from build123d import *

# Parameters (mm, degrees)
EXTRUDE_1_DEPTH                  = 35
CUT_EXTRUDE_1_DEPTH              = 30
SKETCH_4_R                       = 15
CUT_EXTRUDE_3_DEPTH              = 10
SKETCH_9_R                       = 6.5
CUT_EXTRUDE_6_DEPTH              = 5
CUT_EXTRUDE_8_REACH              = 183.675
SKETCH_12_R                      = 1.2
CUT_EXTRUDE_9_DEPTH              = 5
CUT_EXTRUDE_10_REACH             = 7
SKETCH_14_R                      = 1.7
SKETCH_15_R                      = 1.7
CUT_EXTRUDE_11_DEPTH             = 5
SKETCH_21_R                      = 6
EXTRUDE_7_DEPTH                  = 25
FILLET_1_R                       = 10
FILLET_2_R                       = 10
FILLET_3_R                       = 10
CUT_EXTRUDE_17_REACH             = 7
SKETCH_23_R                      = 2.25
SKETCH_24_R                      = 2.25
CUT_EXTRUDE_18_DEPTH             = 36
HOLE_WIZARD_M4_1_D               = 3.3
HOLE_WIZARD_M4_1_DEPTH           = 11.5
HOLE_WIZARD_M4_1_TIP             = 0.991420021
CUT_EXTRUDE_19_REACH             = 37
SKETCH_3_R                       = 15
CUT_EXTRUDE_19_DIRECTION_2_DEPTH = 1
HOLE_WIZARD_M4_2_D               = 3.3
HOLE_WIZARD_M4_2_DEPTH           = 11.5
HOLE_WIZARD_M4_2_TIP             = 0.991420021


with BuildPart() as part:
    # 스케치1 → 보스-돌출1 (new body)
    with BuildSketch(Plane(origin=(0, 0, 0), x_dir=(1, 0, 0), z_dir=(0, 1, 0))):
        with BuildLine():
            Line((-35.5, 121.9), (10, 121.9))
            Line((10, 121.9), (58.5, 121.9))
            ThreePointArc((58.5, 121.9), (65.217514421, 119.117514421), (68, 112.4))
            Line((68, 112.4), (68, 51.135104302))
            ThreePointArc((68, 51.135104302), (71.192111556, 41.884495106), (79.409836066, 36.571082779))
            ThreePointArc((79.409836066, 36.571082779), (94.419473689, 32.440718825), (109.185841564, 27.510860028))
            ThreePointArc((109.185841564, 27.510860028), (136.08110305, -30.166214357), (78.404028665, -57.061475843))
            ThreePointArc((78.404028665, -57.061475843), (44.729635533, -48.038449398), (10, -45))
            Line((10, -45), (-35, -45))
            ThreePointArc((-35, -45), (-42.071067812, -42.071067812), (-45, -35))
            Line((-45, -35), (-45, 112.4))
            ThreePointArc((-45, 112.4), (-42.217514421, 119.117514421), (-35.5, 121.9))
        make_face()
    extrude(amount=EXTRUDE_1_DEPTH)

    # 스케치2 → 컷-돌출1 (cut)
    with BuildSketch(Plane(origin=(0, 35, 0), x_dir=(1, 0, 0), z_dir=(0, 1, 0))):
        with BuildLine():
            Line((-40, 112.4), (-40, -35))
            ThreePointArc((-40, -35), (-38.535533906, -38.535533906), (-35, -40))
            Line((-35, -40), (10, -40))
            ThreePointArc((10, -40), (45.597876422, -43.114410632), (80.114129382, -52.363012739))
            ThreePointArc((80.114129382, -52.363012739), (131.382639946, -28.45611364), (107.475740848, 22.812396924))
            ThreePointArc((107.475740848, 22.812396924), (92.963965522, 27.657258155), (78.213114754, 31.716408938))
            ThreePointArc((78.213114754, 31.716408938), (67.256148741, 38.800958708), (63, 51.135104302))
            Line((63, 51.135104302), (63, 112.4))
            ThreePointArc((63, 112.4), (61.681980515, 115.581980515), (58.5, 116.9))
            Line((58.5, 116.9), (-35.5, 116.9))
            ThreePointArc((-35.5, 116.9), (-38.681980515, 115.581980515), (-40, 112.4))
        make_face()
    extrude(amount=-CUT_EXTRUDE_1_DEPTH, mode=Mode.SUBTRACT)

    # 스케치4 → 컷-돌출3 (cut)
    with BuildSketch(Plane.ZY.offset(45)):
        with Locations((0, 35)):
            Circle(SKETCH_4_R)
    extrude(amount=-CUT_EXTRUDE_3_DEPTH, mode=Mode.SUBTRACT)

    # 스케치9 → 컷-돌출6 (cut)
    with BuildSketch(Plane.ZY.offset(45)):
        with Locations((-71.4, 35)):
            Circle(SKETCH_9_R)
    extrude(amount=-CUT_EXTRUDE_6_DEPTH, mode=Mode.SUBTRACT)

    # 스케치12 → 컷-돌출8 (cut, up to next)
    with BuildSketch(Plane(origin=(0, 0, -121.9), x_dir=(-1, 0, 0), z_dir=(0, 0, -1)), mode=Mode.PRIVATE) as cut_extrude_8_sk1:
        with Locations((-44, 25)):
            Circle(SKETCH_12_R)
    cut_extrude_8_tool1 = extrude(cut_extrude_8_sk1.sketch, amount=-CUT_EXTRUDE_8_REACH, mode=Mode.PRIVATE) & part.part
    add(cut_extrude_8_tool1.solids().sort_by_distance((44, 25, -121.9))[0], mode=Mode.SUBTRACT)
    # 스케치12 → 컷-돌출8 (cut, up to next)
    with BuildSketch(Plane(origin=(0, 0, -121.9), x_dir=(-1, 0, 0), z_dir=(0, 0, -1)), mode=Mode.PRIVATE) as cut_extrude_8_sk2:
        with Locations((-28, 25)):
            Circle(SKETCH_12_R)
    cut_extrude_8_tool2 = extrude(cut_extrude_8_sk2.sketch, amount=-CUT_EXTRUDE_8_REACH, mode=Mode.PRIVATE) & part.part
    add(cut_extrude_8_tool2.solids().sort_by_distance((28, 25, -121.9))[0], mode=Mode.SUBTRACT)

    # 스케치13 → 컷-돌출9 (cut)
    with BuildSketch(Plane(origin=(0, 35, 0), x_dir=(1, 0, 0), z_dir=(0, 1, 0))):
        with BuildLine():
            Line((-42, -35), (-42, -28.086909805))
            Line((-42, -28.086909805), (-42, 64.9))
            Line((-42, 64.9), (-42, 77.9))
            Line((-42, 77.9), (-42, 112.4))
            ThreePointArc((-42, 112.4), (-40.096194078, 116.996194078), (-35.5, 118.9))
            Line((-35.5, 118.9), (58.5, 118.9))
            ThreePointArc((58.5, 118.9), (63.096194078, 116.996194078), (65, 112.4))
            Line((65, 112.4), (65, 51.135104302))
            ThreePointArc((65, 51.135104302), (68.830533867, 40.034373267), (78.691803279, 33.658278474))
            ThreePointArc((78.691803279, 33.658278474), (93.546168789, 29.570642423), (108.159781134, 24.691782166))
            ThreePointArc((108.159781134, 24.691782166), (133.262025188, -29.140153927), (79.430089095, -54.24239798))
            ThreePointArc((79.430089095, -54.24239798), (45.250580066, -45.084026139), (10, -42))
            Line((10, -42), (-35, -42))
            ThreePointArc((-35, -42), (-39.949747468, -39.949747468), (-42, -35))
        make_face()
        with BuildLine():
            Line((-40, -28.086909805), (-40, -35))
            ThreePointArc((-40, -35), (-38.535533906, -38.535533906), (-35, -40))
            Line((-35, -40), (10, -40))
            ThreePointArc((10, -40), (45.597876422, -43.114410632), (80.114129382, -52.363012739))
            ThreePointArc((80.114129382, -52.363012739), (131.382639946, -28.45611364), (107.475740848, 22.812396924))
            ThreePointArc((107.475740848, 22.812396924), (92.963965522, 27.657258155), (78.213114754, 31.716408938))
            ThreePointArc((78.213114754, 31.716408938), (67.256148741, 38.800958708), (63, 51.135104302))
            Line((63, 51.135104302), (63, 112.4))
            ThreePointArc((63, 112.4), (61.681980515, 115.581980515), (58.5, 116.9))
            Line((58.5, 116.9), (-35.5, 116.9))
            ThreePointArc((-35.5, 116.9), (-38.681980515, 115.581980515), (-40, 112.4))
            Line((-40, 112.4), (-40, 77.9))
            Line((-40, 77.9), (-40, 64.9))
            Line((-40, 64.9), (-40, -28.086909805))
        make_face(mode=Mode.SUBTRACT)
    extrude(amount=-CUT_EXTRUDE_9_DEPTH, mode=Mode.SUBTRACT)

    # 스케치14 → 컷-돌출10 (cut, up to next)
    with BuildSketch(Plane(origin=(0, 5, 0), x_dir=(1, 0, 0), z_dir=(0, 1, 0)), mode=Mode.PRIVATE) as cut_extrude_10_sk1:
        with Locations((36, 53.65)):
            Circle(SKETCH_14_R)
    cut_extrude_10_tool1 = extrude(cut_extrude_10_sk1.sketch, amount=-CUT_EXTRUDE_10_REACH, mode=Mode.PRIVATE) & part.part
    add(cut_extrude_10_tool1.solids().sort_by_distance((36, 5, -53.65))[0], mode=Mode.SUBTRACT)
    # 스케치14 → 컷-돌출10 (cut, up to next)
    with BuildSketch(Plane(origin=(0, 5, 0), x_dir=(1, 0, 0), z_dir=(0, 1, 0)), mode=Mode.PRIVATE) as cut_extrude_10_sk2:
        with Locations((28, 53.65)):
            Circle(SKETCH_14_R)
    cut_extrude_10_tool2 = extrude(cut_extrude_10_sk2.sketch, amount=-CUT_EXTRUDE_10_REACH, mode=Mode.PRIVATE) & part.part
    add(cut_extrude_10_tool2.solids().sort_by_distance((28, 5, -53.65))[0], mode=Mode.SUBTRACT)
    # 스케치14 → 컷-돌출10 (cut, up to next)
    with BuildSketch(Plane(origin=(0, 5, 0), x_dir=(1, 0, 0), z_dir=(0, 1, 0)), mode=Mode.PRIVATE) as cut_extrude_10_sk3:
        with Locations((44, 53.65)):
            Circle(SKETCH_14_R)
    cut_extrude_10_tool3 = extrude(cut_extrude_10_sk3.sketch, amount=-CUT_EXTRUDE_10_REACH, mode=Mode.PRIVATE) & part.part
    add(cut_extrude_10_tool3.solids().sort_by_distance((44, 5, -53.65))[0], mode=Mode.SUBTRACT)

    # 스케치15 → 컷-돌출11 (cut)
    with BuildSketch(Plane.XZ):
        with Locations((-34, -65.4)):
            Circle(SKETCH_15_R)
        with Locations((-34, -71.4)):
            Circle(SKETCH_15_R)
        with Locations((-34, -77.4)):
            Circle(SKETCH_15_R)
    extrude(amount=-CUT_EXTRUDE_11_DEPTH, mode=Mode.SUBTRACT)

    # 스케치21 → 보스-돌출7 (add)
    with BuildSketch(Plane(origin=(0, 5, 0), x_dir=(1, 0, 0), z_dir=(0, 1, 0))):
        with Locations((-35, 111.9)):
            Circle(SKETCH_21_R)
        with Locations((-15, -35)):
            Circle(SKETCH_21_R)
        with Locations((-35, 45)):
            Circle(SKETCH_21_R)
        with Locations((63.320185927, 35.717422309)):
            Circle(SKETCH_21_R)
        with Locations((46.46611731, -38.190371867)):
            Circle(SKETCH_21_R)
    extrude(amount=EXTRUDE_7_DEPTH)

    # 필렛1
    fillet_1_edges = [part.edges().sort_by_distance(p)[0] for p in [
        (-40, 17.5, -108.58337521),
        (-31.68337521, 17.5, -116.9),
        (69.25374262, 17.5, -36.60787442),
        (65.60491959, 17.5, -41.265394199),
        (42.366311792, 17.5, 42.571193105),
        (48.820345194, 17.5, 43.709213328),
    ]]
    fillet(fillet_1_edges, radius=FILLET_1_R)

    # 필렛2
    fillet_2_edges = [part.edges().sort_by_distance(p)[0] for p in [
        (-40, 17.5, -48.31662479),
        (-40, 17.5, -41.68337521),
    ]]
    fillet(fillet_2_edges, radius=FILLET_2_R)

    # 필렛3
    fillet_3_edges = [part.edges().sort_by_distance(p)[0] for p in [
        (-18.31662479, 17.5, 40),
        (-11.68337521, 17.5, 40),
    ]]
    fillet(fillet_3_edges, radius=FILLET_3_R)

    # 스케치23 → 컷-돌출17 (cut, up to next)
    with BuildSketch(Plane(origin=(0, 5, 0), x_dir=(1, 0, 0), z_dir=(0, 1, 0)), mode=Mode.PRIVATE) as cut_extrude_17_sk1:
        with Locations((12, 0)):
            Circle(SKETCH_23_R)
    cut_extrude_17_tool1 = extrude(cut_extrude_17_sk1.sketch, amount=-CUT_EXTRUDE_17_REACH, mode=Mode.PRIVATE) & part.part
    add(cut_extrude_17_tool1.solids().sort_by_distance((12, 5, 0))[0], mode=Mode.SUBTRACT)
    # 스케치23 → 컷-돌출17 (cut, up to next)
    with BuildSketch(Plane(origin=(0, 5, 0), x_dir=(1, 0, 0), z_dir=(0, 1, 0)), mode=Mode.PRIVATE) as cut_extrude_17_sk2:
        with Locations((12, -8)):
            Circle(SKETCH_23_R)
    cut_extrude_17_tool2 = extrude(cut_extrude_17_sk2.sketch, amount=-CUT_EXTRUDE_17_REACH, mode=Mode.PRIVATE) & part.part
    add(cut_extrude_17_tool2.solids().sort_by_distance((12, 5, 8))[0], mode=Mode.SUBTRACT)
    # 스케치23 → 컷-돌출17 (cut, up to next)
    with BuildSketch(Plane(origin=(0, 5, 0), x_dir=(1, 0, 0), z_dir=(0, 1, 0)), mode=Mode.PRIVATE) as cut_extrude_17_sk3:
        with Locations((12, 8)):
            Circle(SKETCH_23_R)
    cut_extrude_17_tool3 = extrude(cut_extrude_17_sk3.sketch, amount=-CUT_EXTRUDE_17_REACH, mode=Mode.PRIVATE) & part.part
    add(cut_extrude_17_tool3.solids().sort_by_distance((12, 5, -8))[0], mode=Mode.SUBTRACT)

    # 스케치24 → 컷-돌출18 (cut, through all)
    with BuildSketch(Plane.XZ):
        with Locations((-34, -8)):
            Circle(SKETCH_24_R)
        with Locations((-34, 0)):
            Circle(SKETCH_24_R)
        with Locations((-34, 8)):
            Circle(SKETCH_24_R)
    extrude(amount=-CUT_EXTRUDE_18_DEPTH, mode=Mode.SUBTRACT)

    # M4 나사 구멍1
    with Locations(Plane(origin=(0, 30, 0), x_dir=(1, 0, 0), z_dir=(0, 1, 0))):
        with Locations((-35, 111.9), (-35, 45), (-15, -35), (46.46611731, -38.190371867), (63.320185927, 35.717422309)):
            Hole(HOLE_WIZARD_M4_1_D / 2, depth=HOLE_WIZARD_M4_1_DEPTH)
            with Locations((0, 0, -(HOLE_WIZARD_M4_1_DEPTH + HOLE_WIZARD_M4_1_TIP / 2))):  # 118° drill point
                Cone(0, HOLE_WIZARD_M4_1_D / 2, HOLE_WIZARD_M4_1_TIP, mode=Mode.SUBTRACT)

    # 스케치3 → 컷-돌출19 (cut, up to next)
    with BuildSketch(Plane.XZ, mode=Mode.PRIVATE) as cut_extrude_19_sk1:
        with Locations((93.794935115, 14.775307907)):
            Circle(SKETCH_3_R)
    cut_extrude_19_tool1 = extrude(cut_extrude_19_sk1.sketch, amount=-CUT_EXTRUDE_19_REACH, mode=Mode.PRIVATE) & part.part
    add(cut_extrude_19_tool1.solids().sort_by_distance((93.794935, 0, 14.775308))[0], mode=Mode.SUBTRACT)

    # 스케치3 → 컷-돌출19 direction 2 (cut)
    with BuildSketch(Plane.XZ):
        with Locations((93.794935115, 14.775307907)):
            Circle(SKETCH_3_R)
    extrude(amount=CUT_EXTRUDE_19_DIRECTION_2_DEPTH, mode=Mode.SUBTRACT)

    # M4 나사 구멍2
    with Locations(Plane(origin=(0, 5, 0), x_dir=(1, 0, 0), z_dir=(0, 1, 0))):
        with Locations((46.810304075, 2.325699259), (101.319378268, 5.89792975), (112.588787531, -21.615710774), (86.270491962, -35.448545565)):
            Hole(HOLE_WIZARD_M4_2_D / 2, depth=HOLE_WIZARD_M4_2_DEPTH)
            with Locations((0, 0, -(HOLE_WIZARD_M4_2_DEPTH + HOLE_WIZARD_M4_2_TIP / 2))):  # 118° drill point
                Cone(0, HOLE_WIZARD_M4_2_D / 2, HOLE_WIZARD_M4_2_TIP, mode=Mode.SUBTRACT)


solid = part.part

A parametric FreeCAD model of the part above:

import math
import FreeCAD as App
import Part
import Sketcher
Q = App.Units.Quantity


def edges_at(feature, points):
    """Names of the edges that pass closest to the given points."""
    edges = feature.Shape.Edges
    near = lambda p: min(range(len(edges)), key=lambda i: edges[i].distToShape(Part.Vertex(*p))[0])
    return sorted({f"Edge{near(p) + 1}" for p in points})

doc = App.newDocument("Part")
body = doc.addObject("PartDesign::Body", "Body")

# Sketch on XZ plane
sketch1 = body.newObject("Sketcher::SketchObject", "Sketch")
sketch1.AttachmentSupport = (doc.getObject("XZ_Plane"), [""])
sketch1.MapMode = "FlatFace"
sketch1.addGeometry(Part.LineSegment(App.Vector(58, -122, 0), App.Vector(-36, -122, 0)), False)
sketch1.addGeometry(Part.ArcOfCircle(Part.Circle(App.Vector(-35, -112, 0), App.Vector(0, 0, 1), 10), math.radians(-180), math.radians(-90)), False)
sketch1.addGeometry(Part.LineSegment(App.Vector(-45, -112, 0), App.Vector(-45, 35, 0)), False)
sketch1.addGeometry(Part.ArcOfCircle(Part.Circle(App.Vector(-35, 35, 0), App.Vector(0, 0, 1), 10), math.radians(90), math.radians(180)), False)
sketch1.addGeometry(Part.LineSegment(App.Vector(-35, 45, 0), App.Vector(10, 45, 0)), False)
sketch1.addGeometry(Part.ArcOfCircle(Part.Circle(App.Vector(10, 245, 0), App.Vector(0, 0, 1), 200), math.radians(-90), math.radians(-70)), False)
sketch1.addGeometry(Part.ArcOfCircle(Part.Circle(App.Vector(94, 15, 0), App.Vector(0, 0, 1), 45), math.radians(-70), math.radians(110)), False)
sketch1.addGeometry(Part.ArcOfCircle(Part.Circle(App.Vector(10, 245, 0), App.Vector(0, 0, 1), 290), math.radians(-76.15), math.radians(-70)), False)
sketch1.addGeometry(Part.ArcOfCircle(Part.Circle(App.Vector(83, -51, 0), App.Vector(0, 0, 1), 15), math.radians(104), math.radians(180)), False)
sketch1.addGeometry(Part.LineSegment(App.Vector(68, -51, 0), App.Vector(68, -112, 0)), False)
sketch1.addGeometry(Part.ArcOfCircle(Part.Circle(App.Vector(58, -112, 0), App.Vector(0, 0, 1), 10), math.radians(-90), math.radians(0)), False)
sketch1.addConstraint(Sketcher.Constraint("Tangent", 0, 2, 1, 2))
sketch1.addConstraint(Sketcher.Constraint("Tangent", 1, 1, 2, 1))
sketch1.addConstraint(Sketcher.Constraint("Tangent", 2, 2, 3, 2))
sketch1.addConstraint(Sketcher.Constraint("Tangent", 3, 1, 4, 1))
sketch1.addConstraint(Sketcher.Constraint("Tangent", 4, 2, 5, 1))
sketch1.addConstraint(Sketcher.Constraint("Tangent", 5, 2, 6, 2))
sketch1.addConstraint(Sketcher.Constraint("Tangent", 6, 1, 7, 2))
sketch1.addConstraint(Sketcher.Constraint("Tangent", 7, 1, 8, 1))
sketch1.addConstraint(Sketcher.Constraint("Tangent", 8, 2, 9, 1))
sketch1.addConstraint(Sketcher.Constraint("Tangent", 9, 2, 10, 2))
sketch1.addConstraint(Sketcher.Constraint("Tangent", 10, 1, 0, 1))
sketch1.addConstraint(Sketcher.Constraint("Horizontal", 0))
sketch1.addConstraint(Sketcher.Constraint("Vertical", 2))
sketch1.addConstraint(Sketcher.Constraint("Horizontal", 4))
sketch1.addConstraint(Sketcher.Constraint("Vertical", 9))
sketch1.addConstraint(Sketcher.Constraint("Coincident", 7, 3, 5, 3))
sketch1.addConstraint(Sketcher.Constraint("Equal", 1, 10))
sketch1.addConstraint(Sketcher.Constraint("Radius", 3, Q("10 mm")))
sketch1.addConstraint(Sketcher.Constraint("Radius", 5, Q("200 mm")))
sketch1.addConstraint(Sketcher.Constraint("Radius", 6, Q("45 mm")))
sketch1.addConstraint(Sketcher.Constraint("Radius", 8, Q("15 mm")))
sketch1.addConstraint(Sketcher.Constraint("Radius", 1, Q("9.5 mm")))
sketch1.addConstraint(Sketcher.Constraint("DistanceX", 0, 2, 0, 1, Q("94 mm")))
sketch1.addConstraint(Sketcher.Constraint("DistanceX", 4, 1, 4, 2, Q("45 mm")))
sketch1.addConstraint(Sketcher.Constraint("DistanceY", 2, 1, 2, 2, Q("147.4 mm")))
sketch1.addConstraint(Sketcher.Constraint("DistanceX", 3, 3, -1, 1, Q("35 mm")))
sketch1.addConstraint(Sketcher.Constraint("DistanceY", -1, 1, 3, 3, Q("35 mm")))
sketch1.addConstraint(Sketcher.Constraint("DistanceX", 7, 1, 6, 3, Q("14.385099 mm")))
pad1 = body.newObject("PartDesign::Pad", "Pad")
pad1.Profile = sketch1
pad1.Length = 35
pad1.Reversed = True

# Sketch on XZ plane
sketch2 = body.newObject("Sketcher::SketchObject", "Sketch001")
sketch2.AttachmentSupport = (doc.getObject("XZ_Plane"), [""])
sketch2.MapMode = "FlatFace"
sketch2.AttachmentOffset = App.Placement(App.Vector(0, 0, -35), App.Rotation())
sketch2.addGeometry(Part.LineSegment(App.Vector(-40, -112.4, 0), App.Vector(-40, 35, 0)), False)
sketch2.addGeometry(Part.ArcOfCircle(Part.Circle(App.Vector(-35, 35, 0), App.Vector(0, 0, 1), 5), math.radians(90), math.radians(180)), False)
sketch2.addGeometry(Part.LineSegment(App.Vector(-35, 40, 0), App.Vector(10, 40, 0)), False)
sketch2.addGeometry(Part.ArcOfCircle(Part.Circle(App.Vector(10, 245, 0), App.Vector(0, 0, 1), 205), math.radians(-90), math.radians(-70)), False)
sketch2.addGeometry(Part.ArcOfCircle(Part.Circle(App.Vector(93.8, 14.8, 0), App.Vector(0, 0, 1), 40), math.radians(-70), math.radians(110)), False)
sketch2.addGeometry(Part.ArcOfCircle(Part.Circle(App.Vector(10, 245, 0), App.Vector(0, 0, 1), 285), math.radians(-76.15), math.radians(-70)), False)
sketch2.addGeometry(Part.ArcOfCircle(Part.Circle(App.Vector(83, -51.1, 0), App.Vector(0, 0, 1), 20), math.radians(104), math.radians(180)), False)
sketch2.addGeometry(Part.LineSegment(App.Vector(63, -51.1, 0), App.Vector(63, -112.4, 0)), False)
sketch2.addGeometry(Part.ArcOfCircle(Part.Circle(App.Vector(58.5, -112.4, 0), App.Vector(0, 0, 1), 4.5), math.radians(-90), math.radians(0)), False)
sketch2.addGeometry(Part.LineSegment(App.Vector(58.5, -116.9, 0), App.Vector(-35.5, -116.9, 0)), False)
sketch2.addGeometry(Part.ArcOfCircle(Part.Circle(App.Vector(-35.5, -112.4, 0), App.Vector(0, 0, 1), 4.5), math.radians(-180), math.radians(-90)), False)
sketch2.addConstraint(Sketcher.Constraint("Tangent", 0, 2, 1, 2))
sketch2.addConstraint(Sketcher.Constraint("Tangent", 1, 1, 2, 1))
sketch2.addConstraint(Sketcher.Constraint("Tangent", 2, 2, 3, 1))
sketch2.addConstraint(Sketcher.Constraint("Tangent", 3, 2, 4, 2))
sketch2.addConstraint(Sketcher.Constraint("Tangent", 4, 1, 5, 2))
sketch2.addConstraint(Sketcher.Constraint("Tangent", 5, 1, 6, 1))
sketch2.addConstraint(Sketcher.Constraint("Tangent", 6, 2, 7, 1))
sketch2.addConstraint(Sketcher.Constraint("Tangent", 7, 2, 8, 2))
sketch2.addConstraint(Sketcher.Constraint("Tangent", 8, 1, 9, 1))
sketch2.addConstraint(Sketcher.Constraint("Tangent", 9, 2, 10, 2))
sketch2.addConstraint(Sketcher.Constraint("Tangent", 10, 1, 0, 1))
sketch2.addConstraint(Sketcher.Constraint("Vertical", 0))
sketch2.addConstraint(Sketcher.Constraint("Horizontal", 2))
sketch2.addConstraint(Sketcher.Constraint("Vertical", 7))
sketch2.addConstraint(Sketcher.Constraint("Horizontal", 9))
sketch2.addConstraint(Sketcher.Constraint("Coincident", 5, 3, 3, 3))
sketch2.addConstraint(Sketcher.Constraint("Equal", 8, 10))
sketch2.addConstraint(Sketcher.Constraint("Radius", 1, Q("5 mm")))
sketch2.addConstraint(Sketcher.Constraint("Radius", 3, Q("205 mm")))
sketch2.addConstraint(Sketcher.Constraint("Radius", 4, Q("40 mm")))
sketch2.addConstraint(Sketcher.Constraint("Radius", 6, Q("20 mm")))
sketch2.addConstraint(Sketcher.Constraint("Radius", 8, Q("4.5 mm")))
sketch2.addConstraint(Sketcher.Constraint("DistanceX", 2, 1, 2, 2, Q("45 mm")))
sketch2.addConstraint(Sketcher.Constraint("DistanceX", 9, 2, 9, 1, Q("94 mm")))
sketch2.addConstraint(Sketcher.Constraint("DistanceY", 0, 1, 0, 2, Q("147.4 mm")))
sketch2.addConstraint(Sketcher.Constraint("DistanceX", 1, 3, -1, 1, Q("35 mm")))
sketch2.addConstraint(Sketcher.Constraint("DistanceY", -1, 1, 1, 3, Q("35 mm")))
sketch2.addConstraint(Sketcher.Constraint("DistanceX", -1, 1, 3, 2, Q("80.114129 mm")))
pocket1 = body.newObject("PartDesign::Pocket", "Pocket")
pocket1.Profile = sketch2
pocket1.Length = 30
pocket1.Reversed = True

# Sketch on YZ plane
sketch3 = body.newObject("Sketcher::SketchObject", "Sketch002")
sketch3.AttachmentSupport = (doc.getObject("YZ_Plane"), [""])
sketch3.MapMode = "FlatFace"
sketch3.AttachmentOffset = App.Placement(App.Vector(0, 0, -45), App.Rotation())
sketch3.addGeometry(Part.Circle(App.Vector(35, 0, 0), App.Vector(0, 0, 1), 15), False)
sketch3.addConstraint(Sketcher.Constraint("PointOnObject", 0, 3, -1))
sketch3.addConstraint(Sketcher.Constraint("Diameter", 0, Q("30 mm")))
sketch3.addConstraint(Sketcher.Constraint("DistanceX", -1, 1, 0, 3, Q("35 mm")))
pocket2 = body.newObject("PartDesign::Pocket", "Pocket001")
pocket2.Profile = sketch3
pocket2.Length = 10
pocket2.Reversed = True

# Sketch on YZ plane
sketch4 = body.newObject("Sketcher::SketchObject", "Sketch003")
sketch4.AttachmentSupport = (doc.getObject("YZ_Plane"), [""])
sketch4.MapMode = "FlatFace"
sketch4.AttachmentOffset = App.Placement(App.Vector(0, 0, -45), App.Rotation())
sketch4.addGeometry(Part.Circle(App.Vector(35, -71, 0), App.Vector(0, 0, 1), 6), False)
sketch4.addConstraint(Sketcher.Constraint("Diameter", 0, Q("13 mm")))
sketch4.addConstraint(Sketcher.Constraint("DistanceX", -1, 1, 0, 3, Q("35 mm")))
sketch4.addConstraint(Sketcher.Constraint("DistanceY", 0, 3, -1, 1, Q("71.4 mm")))
pocket3 = body.newObject("PartDesign::Pocket", "Pocket002")
pocket3.Profile = sketch4
pocket3.Length = 5
pocket3.Reversed = True

# Sketch on XY plane
sketch5 = body.newObject("Sketcher::SketchObject", "Sketch004")
sketch5.AttachmentSupport = (doc.getObject("XY_Plane"), [""])
sketch5.MapMode = "FlatFace"
sketch5.AttachmentOffset = App.Placement(App.Vector(0, 0, -121.9), App.Rotation())
sketch5.addGeometry(Part.Circle(App.Vector(44, 25, 0), App.Vector(0, 0, 1), 1.2), False)
sketch5.addConstraint(Sketcher.Constraint("Diameter", 0, Q("2.4 mm")))
sketch5.addConstraint(Sketcher.Constraint("DistanceX", -1, 1, 0, 3, Q("44 mm")))
sketch5.addConstraint(Sketcher.Constraint("DistanceY", -1, 1, 0, 3, Q("25 mm")))
pocket4 = body.newObject("PartDesign::Pocket", "Pocket003")
pocket4.Profile = sketch5
pocket4.Type = "UpToFirst"
pocket4.Reversed = True

# Sketch on XY plane
sketch6 = body.newObject("Sketcher::SketchObject", "Sketch005")
sketch6.AttachmentSupport = (doc.getObject("XY_Plane"), [""])
sketch6.MapMode = "FlatFace"
sketch6.AttachmentOffset = App.Placement(App.Vector(0, 0, -121.9), App.Rotation())
sketch6.addGeometry(Part.Circle(App.Vector(28, 25, 0), App.Vector(0, 0, 1), 1.2), False)
sketch6.addConstraint(Sketcher.Constraint("Diameter", 0, Q("2.4 mm")))
sketch6.addConstraint(Sketcher.Constraint("DistanceX", -1, 1, 0, 3, Q("28 mm")))
sketch6.addConstraint(Sketcher.Constraint("DistanceY", -1, 1, 0, 3, Q("25 mm")))
pocket5 = body.newObject("PartDesign::Pocket", "Pocket004")
pocket5.Profile = sketch6
pocket5.Type = "UpToFirst"
pocket5.Reversed = True

# Sketch on XZ plane
sketch7 = body.newObject("Sketcher::SketchObject", "Sketch006")
sketch7.AttachmentSupport = (doc.getObject("XZ_Plane"), [""])
sketch7.MapMode = "FlatFace"
sketch7.AttachmentOffset = App.Placement(App.Vector(0, 0, -35), App.Rotation())
sketch7.addGeometry(Part.LineSegment(App.Vector(-42, -112.4, 0), App.Vector(-42, 35, 0)), False)
sketch7.addGeometry(Part.ArcOfCircle(Part.Circle(App.Vector(-35, 35, 0), App.Vector(0, 0, 1), 7), math.radians(90), math.radians(180)), False)
sketch7.addGeometry(Part.LineSegment(App.Vector(-35, 42, 0), App.Vector(10, 42, 0)), False)
sketch7.addGeometry(Part.ArcOfCircle(Part.Circle(App.Vector(10, 245, 0), App.Vector(0, 0, 1), 203), math.radians(-90), math.radians(-70)), False)
sketch7.addGeometry(Part.ArcOfCircle(Part.Circle(App.Vector(93.8, 14.8, 0), App.Vector(0, 0, 1), 42), math.radians(-70), math.radians(110)), False)
sketch7.addGeometry(Part.ArcOfCircle(Part.Circle(App.Vector(10, 245, 0), App.Vector(0, 0, 1), 287), math.radians(-76.15), math.radians(-70)), False)
sketch7.addGeometry(Part.ArcOfCircle(Part.Circle(App.Vector(83, -51.1, 0), App.Vector(0, 0, 1), 18), math.radians(104), math.radians(180)), False)
sketch7.addGeometry(Part.LineSegment(App.Vector(65, -51.1, 0), App.Vector(65, -112.4, 0)), False)
sketch7.addGeometry(Part.ArcOfCircle(Part.Circle(App.Vector(58.5, -112.4, 0), App.Vector(0, 0, 1), 6.5), math.radians(-90), math.radians(0)), False)
sketch7.addGeometry(Part.LineSegment(App.Vector(58.5, -118.9, 0), App.Vector(-35.5, -118.9, 0)), False)
sketch7.addGeometry(Part.ArcOfCircle(Part.Circle(App.Vector(-35.5, -112.4, 0), App.Vector(0, 0, 1), 6.5), math.radians(180), math.radians(270)), False)
sketch7.addGeometry(Part.LineSegment(App.Vector(-40, 35, 0), App.Vector(-40, -112.4, 0)), False)
sketch7.addGeometry(Part.ArcOfCircle(Part.Circle(App.Vector(-35.5, -112.4, 0), App.Vector(0, 0, 1), 4.5), math.radians(-180), math.radians(-90)), False)
sketch7.addGeometry(Part.LineSegment(App.Vector(-35.5, -116.9, 0), App.Vector(58.5, -116.9, 0)), False)
sketch7.addGeometry(Part.ArcOfCircle(Part.Circle(App.Vector(58.5, -112.4, 0), App.Vector(0, 0, 1), 4.5), math.radians(-90), math.radians(0)), False)
sketch7.addGeometry(Part.LineSegment(App.Vector(63, -112.4, 0), App.Vector(63, -51.1, 0)), False)
sketch7.addGeometry(Part.ArcOfCircle(Part.Circle(App.Vector(83, -51.1, 0), App.Vector(0, 0, 1), 20), math.radians(104), math.radians(180)), False)
sketch7.addGeometry(Part.ArcOfCircle(Part.Circle(App.Vector(10, 245, 0), App.Vector(0, 0, 1), 285), math.radians(-76.15), math.radians(-70)), False)
sketch7.addGeometry(Part.ArcOfCircle(Part.Circle(App.Vector(93.8, 14.8, 0), App.Vector(0, 0, 1), 40), math.radians(-70), math.radians(110)), False)
sketch7.addGeometry(Part.ArcOfCircle(Part.Circle(App.Vector(10, 245, 0), App.Vector(0, 0, 1), 205), math.radians(-90), math.radians(-70)), False)
sketch7.addGeometry(Part.LineSegment(App.Vector(10, 40, 0), App.Vector(-35, 40, 0)), False)
sketch7.addGeometry(Part.ArcOfCircle(Part.Circle(App.Vector(-35, 35, 0), App.Vector(0, 0, 1), 5), math.radians(90), math.radians(180)), False)
sketch7.addConstraint(Sketcher.Constraint("Tangent", 0, 2, 1, 2))
sketch7.addConstraint(Sketcher.Constraint("Tangent", 1, 1, 2, 1))
sketch7.addConstraint(Sketcher.Constraint("Tangent", 2, 2, 3, 1))
sketch7.addConstraint(Sketcher.Constraint("Tangent", 3, 2, 4, 2))
sketch7.addConstraint(Sketcher.Constraint("Tangent", 4, 1, 5, 2))
sketch7.addConstraint(Sketcher.Constraint("Tangent", 5, 1, 6, 1))
sketch7.addConstraint(Sketcher.Constraint("Tangent", 6, 2, 7, 1))
sketch7.addConstraint(Sketcher.Constraint("Tangent", 7, 2, 8, 2))
sketch7.addConstraint(Sketcher.Constraint("Tangent", 8, 1, 9, 1))
sketch7.addConstraint(Sketcher.Constraint("Tangent", 9, 2, 10, 2))
sketch7.addConstraint(Sketcher.Constraint("Tangent", 10, 1, 0, 1))
sketch7.addConstraint(Sketcher.Constraint("Tangent", 11, 2, 12, 1))
sketch7.addConstraint(Sketcher.Constraint("Tangent", 12, 2, 13, 1))
sketch7.addConstraint(Sketcher.Constraint("Tangent", 13, 2, 14, 1))
sketch7.addConstraint(Sketcher.Constraint("Tangent", 14, 2, 15, 1))
sketch7.addConstraint(Sketcher.Constraint("Tangent", 15, 2, 16, 2))
sketch7.addConstraint(Sketcher.Constraint("Tangent", 16, 1, 17, 1))
sketch7.addConstraint(Sketcher.Constraint("Tangent", 17, 2, 18, 1))
sketch7.addConstraint(Sketcher.Constraint("Tangent", 18, 2, 19, 2))
sketch7.addConstraint(Sketcher.Constraint("Tangent", 19, 1, 20, 1))
sketch7.addConstraint(Sketcher.Constraint("Tangent", 20, 2, 21, 1))
sketch7.addConstraint(Sketcher.Constraint("Tangent", 21, 2, 11, 1))
sketch7.addConstraint(Sketcher.Constraint("Vertical", 0))
sketch7.addConstraint(Sketcher.Constraint("Horizontal", 2))
sketch7.addConstraint(Sketcher.Constraint("Vertical", 7))
sketch7.addConstraint(Sketcher.Constraint("Horizontal", 9))
sketch7.addConstraint(Sketcher.Constraint("Vertical", 11))
sketch7.addConstraint(Sketcher.Constraint("Horizontal", 13))
sketch7.addConstraint(Sketcher.Constraint("Vertical", 15))
sketch7.addConstraint(Sketcher.Constraint("Horizontal", 20))
sketch7.addConstraint(Sketcher.Constraint("Coincident", 5, 3, 3, 3))
sketch7.addConstraint(Sketcher.Constraint("Coincident", 12, 3, 10, 3))
sketch7.addConstraint(Sketcher.Constraint("Coincident", 14, 3, 8, 3))
sketch7.addConstraint(Sketcher.Constraint("Coincident", 16, 3, 6, 3))
sketch7.addConstraint(Sketcher.Constraint("Coincident", 17, 3, 3, 3))
sketch7.addConstraint(Sketcher.Constraint("Coincident", 18, 3, 4, 3))
sketch7.addConstraint(Sketcher.Constraint("Coincident", 19, 3, 3, 3))
sketch7.addConstraint(Sketcher.Constraint("Equal", 8, 10))
sketch7.addConstraint(Sketcher.Constraint("Horizontal", 21, 3, 0, 2))
sketch7.addConstraint(Sketcher.Constraint("Radius", 1, Q("7 mm")))
sketch7.addConstraint(Sketcher.Constraint("Radius", 3, Q("203 mm")))
sketch7.addConstraint(Sketcher.Constraint("Radius", 4, Q("42 mm")))
sketch7.addConstraint(Sketcher.Constraint("Radius", 6, Q("18 mm")))
sketch7.addConstraint(Sketcher.Constraint("Radius", 16, Q("20 mm")))
sketch7.addConstraint(Sketcher.Constraint("Radius", 8, Q("6.5 mm")))
sketch7.addConstraint(Sketcher.Constraint("DistanceX", 2, 1, 2, 2, Q("45 mm")))
sketch7.addConstraint(Sketcher.Constraint("DistanceX", 9, 2, 9, 1, Q("94 mm")))
sketch7.addConstraint(Sketcher.Constraint("DistanceY", 0, 1, 0, 2, Q("147.4 mm")))
sketch7.addConstraint(Sketcher.Constraint("DistanceX", 1, 3, -1, 1, Q("35 mm")))
sketch7.addConstraint(Sketcher.Constraint("DistanceY", -1, 1, 1, 3, Q("35 mm")))
sketch7.addConstraint(Sketcher.Constraint("DistanceX", -1, 1, 3, 2, Q("79.430089 mm")))
pocket6 = body.newObject("PartDesign::Pocket", "Pocket005")
pocket6.Profile = sketch7
pocket6.Length = 5
pocket6.Reversed = True

# Sketch on XZ plane
sketch8 = body.newObject("Sketcher::SketchObject", "Sketch007")
sketch8.AttachmentSupport = (doc.getObject("XZ_Plane"), [""])
sketch8.MapMode = "FlatFace"
sketch8.AttachmentOffset = App.Placement(App.Vector(0, 0, -5), App.Rotation())
sketch8.addGeometry(Part.Circle(App.Vector(36, -53.6, 0), App.Vector(0, 0, 1), 1.7), False)
sketch8.addConstraint(Sketcher.Constraint("Diameter", 0, Q("3.4 mm")))
sketch8.addConstraint(Sketcher.Constraint("DistanceX", -1, 1, 0, 3, Q("36 mm")))
sketch8.addConstraint(Sketcher.Constraint("DistanceY", 0, 3, -1, 1, Q("53.65 mm")))
pocket7 = body.newObject("PartDesign::Pocket", "Pocket006")
pocket7.Profile = sketch8
pocket7.Type = "UpToFirst"
pocket7.Reversed = True

# Sketch on XZ plane
sketch9 = body.newObject("Sketcher::SketchObject", "Sketch008")
sketch9.AttachmentSupport = (doc.getObject("XZ_Plane"), [""])
sketch9.MapMode = "FlatFace"
sketch9.AttachmentOffset = App.Placement(App.Vector(0, 0, -5), App.Rotation())
sketch9.addGeometry(Part.Circle(App.Vector(28, -53.6, 0), App.Vector(0, 0, 1), 1.7), False)
sketch9.addConstraint(Sketcher.Constraint("Diameter", 0, Q("3.4 mm")))
sketch9.addConstraint(Sketcher.Constraint("DistanceX", -1, 1, 0, 3, Q("28 mm")))
sketch9.addConstraint(Sketcher.Constraint("DistanceY", 0, 3, -1, 1, Q("53.65 mm")))
pocket8 = body.newObject("PartDesign::Pocket", "Pocket007")
pocket8.Profile = sketch9
pocket8.Type = "UpToFirst"
pocket8.Reversed = True

# Sketch on XZ plane
sketch10 = body.newObject("Sketcher::SketchObject", "Sketch009")
sketch10.AttachmentSupport = (doc.getObject("XZ_Plane"), [""])
sketch10.MapMode = "FlatFace"
sketch10.AttachmentOffset = App.Placement(App.Vector(0, 0, -5), App.Rotation())
sketch10.addGeometry(Part.Circle(App.Vector(44, -53.6, 0), App.Vector(0, 0, 1), 1.7), False)
sketch10.addConstraint(Sketcher.Constraint("Diameter", 0, Q("3.4 mm")))
sketch10.addConstraint(Sketcher.Constraint("DistanceX", -1, 1, 0, 3, Q("44 mm")))
sketch10.addConstraint(Sketcher.Constraint("DistanceY", 0, 3, -1, 1, Q("53.65 mm")))
pocket9 = body.newObject("PartDesign::Pocket", "Pocket008")
pocket9.Profile = sketch10
pocket9.Type = "UpToFirst"
pocket9.Reversed = True

# Sketch on XZ plane
sketch11 = body.newObject("Sketcher::SketchObject", "Sketch010")
sketch11.AttachmentSupport = (doc.getObject("XZ_Plane"), [""])
sketch11.MapMode = "FlatFace"
sketch11.addGeometry(Part.Circle(App.Vector(-34, -65.4, 0), App.Vector(0, 0, 1), 1.7), False)
sketch11.addGeometry(Part.Circle(App.Vector(-34, -71.4, 0), App.Vector(0, 0, 1), 1.7), False)
sketch11.addGeometry(Part.Circle(App.Vector(-34, -77.4, 0), App.Vector(0, 0, 1), 1.7), False)
sketch11.addConstraint(Sketcher.Constraint("Equal", 0, 1))
sketch11.addConstraint(Sketcher.Constraint("Equal", 1, 2))
sketch11.addConstraint(Sketcher.Constraint("Vertical", 0, 3, 1, 3))
sketch11.addConstraint(Sketcher.Constraint("Vertical", 1, 3, 2, 3))
sketch11.addConstraint(Sketcher.Constraint("Diameter", 0, Q("3.4 mm")))
sketch11.addConstraint(Sketcher.Constraint("DistanceX", 0, 3, -1, 1, Q("34 mm")))
sketch11.addConstraint(Sketcher.Constraint("DistanceY", 1, 3, 0, 3, Q("6 mm")))
sketch11.addConstraint(Sketcher.Constraint("DistanceY", 2, 3, 1, 3, Q("6 mm")))
sketch11.addConstraint(Sketcher.Constraint("DistanceY", 0, 3, -1, 1, Q("65.4 mm")))
pocket10 = body.newObject("PartDesign::Pocket", "Pocket009")
pocket10.Profile = sketch11
pocket10.Length = 5

# Sketch on XZ plane
sketch12 = body.newObject("Sketcher::SketchObject", "Sketch011")
sketch12.AttachmentSupport = (doc.getObject("XZ_Plane"), [""])
sketch12.MapMode = "FlatFace"
sketch12.AttachmentOffset = App.Placement(App.Vector(0, 0, -5), App.Rotation())
sketch12.addGeometry(Part.Circle(App.Vector(-35, -112, 0), App.Vector(0, 0, 1), 6), False)
sketch12.addGeometry(Part.Circle(App.Vector(-15, 35, 0), App.Vector(0, 0, 1), 6), False)
sketch12.addGeometry(Part.Circle(App.Vector(-35, -45, 0), App.Vector(0, 0, 1), 6), False)
sketch12.addGeometry(Part.Circle(App.Vector(63, -36, 0), App.Vector(0, 0, 1), 6), False)
sketch12.addGeometry(Part.Circle(App.Vector(46, 38, 0), App.Vector(0, 0, 1), 6), False)
sketch12.addConstraint(Sketcher.Constraint("Equal", 0, 1))
sketch12.addConstraint(Sketcher.Constraint("Equal", 1, 2))
sketch12.addConstraint(Sketcher.Constraint("Equal", 2, 3))
sketch12.addConstraint(Sketcher.Constraint("Equal", 3, 4))
sketch12.addConstraint(Sketcher.Constraint("Vertical", 0, 3, 2, 3))
sketch12.addConstraint(Sketcher.Constraint("Diameter", 0, Q("12 mm")))
sketch12.addConstraint(Sketcher.Constraint("DistanceX", 0, 3, -1, 1, Q("35 mm")))
sketch12.addConstraint(Sketcher.Constraint("DistanceX", 1, 3, -1, 1, Q("15 mm")))
sketch12.addConstraint(Sketcher.Constraint("DistanceY", -1, 1, 1, 3, Q("35 mm")))
sketch12.addConstraint(Sketcher.Constraint("DistanceY", 2, 3, -1, 1, Q("45 mm")))
sketch12.addConstraint(Sketcher.Constraint("DistanceY", 0, 3, -1, 1, Q("111.9 mm")))
sketch12.addConstraint(Sketcher.Constraint("DistanceY", -1, 1, 4, 3, Q("38.190372 mm")))
sketch12.addConstraint(Sketcher.Constraint("DistanceX", 4, 3, 3, 3, Q("16.854069 mm")))
sketch12.addConstraint(Sketcher.Constraint("DistanceX", -1, 1, 3, 3, Q("63.320186 mm")))
sketch12.addConstraint(Sketcher.Constraint("DistanceY", 3, 3, -1, 1, Q("35.717422 mm")))
pad2 = body.newObject("PartDesign::Pad", "Pad001")
pad2.Profile = sketch12
pad2.Length = 25
pad2.Reversed = True
doc.recompute()

fillet = body.newObject("PartDesign::Fillet", "Fillet")
fillet.Base = (pad2, edges_at(pad2, [
    (-40, 17.5, -108.583),
    (-31.683, 17.5, -116.9),
    (69.254, 17.5, -36.608),
    (65.605, 17.5, -41.265),
    (42.366, 17.5, 42.571),
    (48.82, 17.5, 43.709),
]))
fillet.Radius = 10
doc.recompute()

fillet2 = body.newObject("PartDesign::Fillet", "Fillet001")
fillet2.Base = (fillet, edges_at(fillet, [(-40, 17.5, -48.317), (-40, 17.5, -41.683)]))
fillet2.Radius = 10
doc.recompute()

fillet3 = body.newObject("PartDesign::Fillet", "Fillet002")
fillet3.Base = (fillet2, edges_at(fillet2, [(-18.317, 17.5, 40), (-11.683, 17.5, 40)]))
fillet3.Radius = 10

# Sketch on XZ plane
sketch13 = body.newObject("Sketcher::SketchObject", "Sketch012")
sketch13.AttachmentSupport = (doc.getObject("XZ_Plane"), [""])
sketch13.MapMode = "FlatFace"
sketch13.AttachmentOffset = App.Placement(App.Vector(0, 0, -5), App.Rotation())
sketch13.addGeometry(Part.Circle(App.Vector(12, 0, 0), App.Vector(0, 0, 1), 2.2), False)
sketch13.addConstraint(Sketcher.Constraint("PointOnObject", 0, 3, -1))
sketch13.addConstraint(Sketcher.Constraint("Diameter", 0, Q("4.5 mm")))
sketch13.addConstraint(Sketcher.Constraint("DistanceX", -1, 1, 0, 3, Q("12 mm")))
pocket11 = body.newObject("PartDesign::Pocket", "Pocket010")
pocket11.Profile = sketch13
pocket11.Type = "UpToFirst"
pocket11.Reversed = True

# Sketch on XZ plane
sketch14 = body.newObject("Sketcher::SketchObject", "Sketch013")
sketch14.AttachmentSupport = (doc.getObject("XZ_Plane"), [""])
sketch14.MapMode = "FlatFace"
sketch14.AttachmentOffset = App.Placement(App.Vector(0, 0, -5), App.Rotation())
sketch14.addGeometry(Part.Circle(App.Vector(12, 8, 0), App.Vector(0, 0, 1), 2.2), False)
sketch14.addConstraint(Sketcher.Constraint("Diameter", 0, Q("4.5 mm")))
sketch14.addConstraint(Sketcher.Constraint("DistanceX", -1, 1, 0, 3, Q("12 mm")))
sketch14.addConstraint(Sketcher.Constraint("DistanceY", -1, 1, 0, 3, Q("8 mm")))
pocket12 = body.newObject("PartDesign::Pocket", "Pocket011")
pocket12.Profile = sketch14
pocket12.Type = "UpToFirst"
pocket12.Reversed = True

# Sketch on XZ plane
sketch15 = body.newObject("Sketcher::SketchObject", "Sketch014")
sketch15.AttachmentSupport = (doc.getObject("XZ_Plane"), [""])
sketch15.MapMode = "FlatFace"
sketch15.AttachmentOffset = App.Placement(App.Vector(0, 0, -5), App.Rotation())
sketch15.addGeometry(Part.Circle(App.Vector(12, -8, 0), App.Vector(0, 0, 1), 2.2), False)
sketch15.addConstraint(Sketcher.Constraint("Diameter", 0, Q("4.5 mm")))
sketch15.addConstraint(Sketcher.Constraint("DistanceX", -1, 1, 0, 3, Q("12 mm")))
sketch15.addConstraint(Sketcher.Constraint("DistanceY", 0, 3, -1, 1, Q("8 mm")))
pocket13 = body.newObject("PartDesign::Pocket", "Pocket012")
pocket13.Profile = sketch15
pocket13.Type = "UpToFirst"
pocket13.Reversed = True

# Sketch on XZ plane
sketch16 = body.newObject("Sketcher::SketchObject", "Sketch015")
sketch16.AttachmentSupport = (doc.getObject("XZ_Plane"), [""])
sketch16.MapMode = "FlatFace"
sketch16.addGeometry(Part.Circle(App.Vector(-34, -8, 0), App.Vector(0, 0, 1), 2.2), False)
sketch16.addGeometry(Part.Circle(App.Vector(-34, 0, 0), App.Vector(0, 0, 1), 2.2), False)
sketch16.addGeometry(Part.Circle(App.Vector(-34, 8, 0), App.Vector(0, 0, 1), 2.2), False)
sketch16.addConstraint(Sketcher.Constraint("Equal", 0, 1))
sketch16.addConstraint(Sketcher.Constraint("Equal", 1, 2))
sketch16.addConstraint(Sketcher.Constraint("Symmetric", 0, 3, 2, 3, -1))
sketch16.addConstraint(Sketcher.Constraint("PointOnObject", 1, 3, -1))
sketch16.addConstraint(Sketcher.Constraint("Vertical", 0, 3, 1, 3))
sketch16.addConstraint(Sketcher.Constraint("Diameter", 0, Q("4.5 mm")))
sketch16.addConstraint(Sketcher.Constraint("DistanceX", 0, 3, -1, 1, Q("34 mm")))
sketch16.addConstraint(Sketcher.Constraint("DistanceY", 0, 3, -1, 1, Q("8 mm")))
pocket14 = body.newObject("PartDesign::Pocket", "Pocket013")
pocket14.Profile = sketch16
pocket14.Type = "ThroughAll"

# Sketch on XZ plane
sketch17 = body.newObject("Sketcher::SketchObject", "Sketch016")
sketch17.AttachmentSupport = (doc.getObject("XZ_Plane"), [""])
sketch17.MapMode = "FlatFace"
sketch17.AttachmentOffset = App.Placement(App.Vector(0, 0, -30), App.Rotation())
sketch17.addGeometry(Part.Circle(App.Vector(-35, -111.9, 0), App.Vector(0, 0, 1), 1.6), False)
sketch17.addGeometry(Part.Circle(App.Vector(-35, -45, 0), App.Vector(0, 0, 1), 1.6), False)
sketch17.addGeometry(Part.Circle(App.Vector(-15, 35, 0), App.Vector(0, 0, 1), 1.6), False)
sketch17.addGeometry(Part.Circle(App.Vector(46.5, 38.2, 0), App.Vector(0, 0, 1), 1.6), False)
sketch17.addGeometry(Part.Circle(App.Vector(63.3, -35.7, 0), App.Vector(0, 0, 1), 1.6), False)
sketch17.addConstraint(Sketcher.Constraint("Equal", 0, 1))
sketch17.addConstraint(Sketcher.Constraint("Equal", 1, 2))
sketch17.addConstraint(Sketcher.Constraint("Equal", 2, 3))
sketch17.addConstraint(Sketcher.Constraint("Equal", 3, 4))
sketch17.addConstraint(Sketcher.Constraint("Vertical", 0, 3, 1, 3))
sketch17.addConstraint(Sketcher.Constraint("Diameter", 0, Q("3.3 mm")))
sketch17.addConstraint(Sketcher.Constraint("DistanceX", 0, 3, -1, 1, Q("35 mm")))
sketch17.addConstraint(Sketcher.Constraint("DistanceY", 1, 3, -1, 1, Q("45 mm")))
sketch17.addConstraint(Sketcher.Constraint("DistanceX", 2, 3, -1, 1, Q("15 mm")))
sketch17.addConstraint(Sketcher.Constraint("DistanceY", -1, 1, 2, 3, Q("35 mm")))
sketch17.addConstraint(Sketcher.Constraint("DistanceY", 0, 3, -1, 1, Q("111.9 mm")))
sketch17.addConstraint(Sketcher.Constraint("DistanceY", -1, 1, 3, 3, Q("38.190372 mm")))
sketch17.addConstraint(Sketcher.Constraint("DistanceX", 3, 3, 4, 3, Q("16.854069 mm")))
sketch17.addConstraint(Sketcher.Constraint("DistanceX", -1, 1, 3, 3, Q("46.466117 mm")))
sketch17.addConstraint(Sketcher.Constraint("DistanceY", 4, 3, -1, 1, Q("35.717422 mm")))
doc.recompute()
hole = body.newObject("PartDesign::Hole", "Hole")
hole.Profile = sketch17
hole.ThreadType = "None"
hole.Diameter = 3.3
hole.DepthType = "Dimension"
hole.Depth = 11.5
hole.DrillPoint = "Angled"
hole.DrillPointAngle = 118
hole.Reversed = True

# Sketch on XZ plane
sketch18 = body.newObject("Sketcher::SketchObject", "Sketch017")
sketch18.AttachmentSupport = (doc.getObject("XZ_Plane"), [""])
sketch18.MapMode = "FlatFace"
sketch18.addGeometry(Part.Circle(App.Vector(94, 15, 0), App.Vector(0, 0, 1), 15), False)
sketch18.addConstraint(Sketcher.Constraint("Diameter", 0, Q("30 mm")))
sketch18.addConstraint(Sketcher.Constraint("DistanceX", -1, 1, 0, 3, Q("93.794935 mm")))
sketch18.addConstraint(Sketcher.Constraint("DistanceY", -1, 1, 0, 3, Q("14.775308 mm")))
pocket15 = body.newObject("PartDesign::Pocket", "Pocket014")
pocket15.Profile = sketch18
pocket15.Type = "UpToFirst"

# Sketch on XZ plane
sketch19 = body.newObject("Sketcher::SketchObject", "Sketch018")
sketch19.AttachmentSupport = (doc.getObject("XZ_Plane"), [""])
sketch19.MapMode = "FlatFace"
sketch19.addGeometry(Part.Circle(App.Vector(94, 15, 0), App.Vector(0, 0, 1), 15), False)
sketch19.addConstraint(Sketcher.Constraint("Diameter", 0, Q("30 mm")))
sketch19.addConstraint(Sketcher.Constraint("DistanceX", -1, 1, 0, 3, Q("93.794935 mm")))
sketch19.addConstraint(Sketcher.Constraint("DistanceY", -1, 1, 0, 3, Q("14.775308 mm")))
pocket16 = body.newObject("PartDesign::Pocket", "Pocket015")
pocket16.Profile = sketch19
pocket16.Length = 1
pocket16.Reversed = True

# Sketch on XZ plane
sketch20 = body.newObject("Sketcher::SketchObject", "Sketch019")
sketch20.AttachmentSupport = (doc.getObject("XZ_Plane"), [""])
sketch20.MapMode = "FlatFace"
sketch20.AttachmentOffset = App.Placement(App.Vector(0, 0, -5), App.Rotation())
sketch20.addGeometry(Part.Circle(App.Vector(46.8, -2.3, 0), App.Vector(0, 0, 1), 1.6), False)
sketch20.addGeometry(Part.Circle(App.Vector(101.3, -5.9, 0), App.Vector(0, 0, 1), 1.6), False)
sketch20.addGeometry(Part.Circle(App.Vector(112.6, 21.6, 0), App.Vector(0, 0, 1), 1.6), False)
sketch20.addGeometry(Part.Circle(App.Vector(86.3, 35.4, 0), App.Vector(0, 0, 1), 1.6), False)
sketch20.addConstraint(Sketcher.Constraint("Equal", 0, 1))
sketch20.addConstraint(Sketcher.Constraint("Equal", 1, 2))
sketch20.addConstraint(Sketcher.Constraint("Equal", 2, 3))
sketch20.addConstraint(Sketcher.Constraint("Diameter", 0, Q("3.3 mm")))
sketch20.addConstraint(Sketcher.Constraint("DistanceY", 0, 3, -1, 1, Q("2.325699 mm")))
sketch20.addConstraint(Sketcher.Constraint("DistanceX", -1, 1, 1, 3, Q("101.319378 mm")))
sketch20.addConstraint(Sketcher.Constraint("DistanceY", 1, 3, -1, 1, Q("5.89793 mm")))
sketch20.addConstraint(Sketcher.Constraint("DistanceY", -1, 1, 2, 3, Q("21.615711 mm")))
sketch20.addConstraint(Sketcher.Constraint("DistanceX", -1, 1, 3, 3, Q("86.270492 mm")))
sketch20.addConstraint(Sketcher.Constraint("DistanceX", 1, 3, 2, 3, Q("11.269409 mm")))
sketch20.addConstraint(Sketcher.Constraint("DistanceX", -1, 1, 0, 3, Q("46.810304 mm")))
sketch20.addConstraint(Sketcher.Constraint("DistanceY", -1, 1, 3, 3, Q("35.448546 mm")))
doc.recompute()
hole2 = body.newObject("PartDesign::Hole", "Hole001")
hole2.Profile = sketch20
hole2.ThreadType = "None"
hole2.Diameter = 3.3
hole2.DepthType = "Dimension"
hole2.Depth = 11.5
hole2.DrillPoint = "Angled"
hole2.DrillPointAngle = 118
hole2.Reversed = True

doc.recompute()
